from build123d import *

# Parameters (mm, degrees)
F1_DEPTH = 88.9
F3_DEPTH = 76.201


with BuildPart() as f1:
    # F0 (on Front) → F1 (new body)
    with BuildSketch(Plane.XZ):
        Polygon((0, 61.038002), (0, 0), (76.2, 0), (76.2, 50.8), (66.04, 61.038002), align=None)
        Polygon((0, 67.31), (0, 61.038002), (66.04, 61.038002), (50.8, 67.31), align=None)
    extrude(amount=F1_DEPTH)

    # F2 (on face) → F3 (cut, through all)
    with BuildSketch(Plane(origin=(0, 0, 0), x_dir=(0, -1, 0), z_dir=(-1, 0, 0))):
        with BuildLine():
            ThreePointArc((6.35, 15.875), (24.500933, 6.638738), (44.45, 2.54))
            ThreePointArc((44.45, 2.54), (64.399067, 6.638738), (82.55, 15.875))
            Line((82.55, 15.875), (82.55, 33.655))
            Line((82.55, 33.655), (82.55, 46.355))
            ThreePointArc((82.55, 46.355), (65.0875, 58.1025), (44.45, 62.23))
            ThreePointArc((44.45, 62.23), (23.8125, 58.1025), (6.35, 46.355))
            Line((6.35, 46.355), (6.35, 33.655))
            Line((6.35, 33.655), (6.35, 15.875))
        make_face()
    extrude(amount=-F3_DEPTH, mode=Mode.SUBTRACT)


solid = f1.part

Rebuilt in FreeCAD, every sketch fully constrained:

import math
import FreeCAD as App
import Part
import Sketcher
from FreeCAD import Vector
Q = App.Units.Quantity


def add_polygon(sketch, points):
    """Adds a closed chain of lines whose ends are joined by coincident constraints."""
    first, n = sketch.GeometryCount, len(points)
    for a, b in zip(points, points[1:] + points[:1]):
        sketch.addGeometry(Part.LineSegment(App.Vector(*a, 0), App.Vector(*b, 0)), False)
    for i in range(n):
        sketch.addConstraint(Sketcher.Constraint("Coincident", first + i, 2, first + (i + 1) % n, 1))

doc = App.newDocument("Part")
body = doc.addObject("PartDesign::Body", "Body")

sketch1 = body.newObject("Sketcher::SketchObject", "Sketch")
sketch1.AttachmentSupport = (doc.getObject("XZ_Plane"), [""])
sketch1.MapMode = "FlatFace"
add_polygon(sketch1, [(0, 0), (76.2, 0), (76.2, 50.8), (66.04, 61.038002), (50.8, 67.31), (0, 67.31)])
sketch1.addConstraint(Sketcher.Constraint("Horizontal", 0))
sketch1.addConstraint(Sketcher.Constraint("Vertical", 1))
sketch1.addConstraint(Sketcher.Constraint("Horizontal", 4))
sketch1.addConstraint(Sketcher.Constraint("Vertical", 5))
sketch1.addConstraint(Sketcher.Constraint("Coincident", 5, 2, -1, 1))
sketch1.addConstraint(Sketcher.Constraint("Equal", 4, 1))
sketch1.addConstraint(Sketcher.Constraint("DistanceX", 0, 1, 0, 2, Q("3 in")))
sketch1.addConstraint(Sketcher.Constraint("DistanceX", 4, 2, 4, 1, Q("2 in")))
sketch1.addConstraint(Sketcher.Constraint("DistanceY", 5, 2, 5, 1, Q("2.65 in")))
sketch1.addConstraint(Sketcher.Constraint("DistanceX", -1, 1, 2, 2, Q("2.6 in")))
sketch1.addConstraint(Sketcher.Constraint("DistanceY", 2, 2, 3, 2, 6.271998))
pad1 = body.newObject("PartDesign::Pad", "Pad")
pad1.Profile = sketch1
pad1.Length = Q("3.5 in")

sketch2 = body.newObject("Sketcher::SketchObject", "Sketch001")
sketch2.AttachmentSupport = (doc.getObject("YZ_Plane"), [""])
sketch2.MapMode = "FlatFace"
sketch2.addGeometry(Part.ArcOfCircle(Part.Circle(Vector(-49.673635, 78.560743, 0), Vector(0, 0, 1), 76.199998), math.radians(-86.069197), math.radians(-55.35071)), False)
sketch2.addGeometry(Part.ArcOfCircle(Part.Circle(Vector(-39.226365, 78.560743, 0), Vector(0, 0, 1), 76.199998), math.radians(-124.64929), math.radians(-93.930803)), False)
sketch2.addGeometry(Part.LineSegment(Vector(-82.55, 15.875, 0), Vector(-82.55, 46.355, 0)), False)
sketch2.addGeometry(Part.ArcOfCircle(Part.Circle(Vector(-44.45, 8.5725, 0), Vector(0, 0, 1), 53.6575), math.radians(44.76027), math.radians(135.23973)), False)
sketch2.addGeometry(Part.LineSegment(Vector(-6.35, 46.355, 0), Vector(-6.35, 15.875, 0)), False)
sketch2.addConstraint(Sketcher.Constraint("Coincident", 0, 1, 1, 2))
sketch2.addConstraint(Sketcher.Constraint("Coincident", 1, 1, 2, 1))
sketch2.addConstraint(Sketcher.Constraint("Coincident", 2, 2, 3, 2))
sketch2.addConstraint(Sketcher.Constraint("Coincident", 3, 1, 4, 1))
sketch2.addConstraint(Sketcher.Constraint("Coincident", 4, 2, 0, 2))
sketch2.addConstraint(Sketcher.Constraint("Vertical", 2))
sketch2.addConstraint(Sketcher.Constraint("Vertical", 4))
sketch2.addConstraint(Sketcher.Constraint("Equal", 0, 1))
sketch2.addConstraint(Sketcher.Constraint("Horizontal", 0, 3, 1, 3))
sketch2.addConstraint(Sketcher.Constraint("Horizontal", 2, 2, 3, 1))
sketch2.addConstraint(Sketcher.Constraint("Horizontal", 1, 1, 4, 2))
sketch2.addConstraint(Sketcher.Constraint("Radius", 0, Q("2.9999999 in")))
sketch2.addConstraint(Sketcher.Constraint("DistanceY", 2, 1, 2, 2, Q("1.2 in")))
sketch2.addConstraint(Sketcher.Constraint("DistanceX", 2, 2, 3, 1, Q("3 in")))
sketch2.addConstraint(Sketcher.Constraint("DistanceY", -1, 1, 0, 1, Q("0.1 in")))
sketch2.addConstraint(Sketcher.Constraint("Radius", 3, Q("2.1125 in")))
sketch2.addConstraint(Sketcher.Constraint("DistanceX", 3, 3, -1, 1, Q("1.75 in")))
sketch2.addConstraint(Sketcher.Constraint("DistanceY", -1, 1, 1, 1, Q("0.625 in")))
pocket1 = body.newObject("PartDesign::Pocket", "Pocket")
pocket1.Profile = sketch2
pocket1.Type = "ThroughAll"
pocket1.Reversed = True

doc.recompute()
